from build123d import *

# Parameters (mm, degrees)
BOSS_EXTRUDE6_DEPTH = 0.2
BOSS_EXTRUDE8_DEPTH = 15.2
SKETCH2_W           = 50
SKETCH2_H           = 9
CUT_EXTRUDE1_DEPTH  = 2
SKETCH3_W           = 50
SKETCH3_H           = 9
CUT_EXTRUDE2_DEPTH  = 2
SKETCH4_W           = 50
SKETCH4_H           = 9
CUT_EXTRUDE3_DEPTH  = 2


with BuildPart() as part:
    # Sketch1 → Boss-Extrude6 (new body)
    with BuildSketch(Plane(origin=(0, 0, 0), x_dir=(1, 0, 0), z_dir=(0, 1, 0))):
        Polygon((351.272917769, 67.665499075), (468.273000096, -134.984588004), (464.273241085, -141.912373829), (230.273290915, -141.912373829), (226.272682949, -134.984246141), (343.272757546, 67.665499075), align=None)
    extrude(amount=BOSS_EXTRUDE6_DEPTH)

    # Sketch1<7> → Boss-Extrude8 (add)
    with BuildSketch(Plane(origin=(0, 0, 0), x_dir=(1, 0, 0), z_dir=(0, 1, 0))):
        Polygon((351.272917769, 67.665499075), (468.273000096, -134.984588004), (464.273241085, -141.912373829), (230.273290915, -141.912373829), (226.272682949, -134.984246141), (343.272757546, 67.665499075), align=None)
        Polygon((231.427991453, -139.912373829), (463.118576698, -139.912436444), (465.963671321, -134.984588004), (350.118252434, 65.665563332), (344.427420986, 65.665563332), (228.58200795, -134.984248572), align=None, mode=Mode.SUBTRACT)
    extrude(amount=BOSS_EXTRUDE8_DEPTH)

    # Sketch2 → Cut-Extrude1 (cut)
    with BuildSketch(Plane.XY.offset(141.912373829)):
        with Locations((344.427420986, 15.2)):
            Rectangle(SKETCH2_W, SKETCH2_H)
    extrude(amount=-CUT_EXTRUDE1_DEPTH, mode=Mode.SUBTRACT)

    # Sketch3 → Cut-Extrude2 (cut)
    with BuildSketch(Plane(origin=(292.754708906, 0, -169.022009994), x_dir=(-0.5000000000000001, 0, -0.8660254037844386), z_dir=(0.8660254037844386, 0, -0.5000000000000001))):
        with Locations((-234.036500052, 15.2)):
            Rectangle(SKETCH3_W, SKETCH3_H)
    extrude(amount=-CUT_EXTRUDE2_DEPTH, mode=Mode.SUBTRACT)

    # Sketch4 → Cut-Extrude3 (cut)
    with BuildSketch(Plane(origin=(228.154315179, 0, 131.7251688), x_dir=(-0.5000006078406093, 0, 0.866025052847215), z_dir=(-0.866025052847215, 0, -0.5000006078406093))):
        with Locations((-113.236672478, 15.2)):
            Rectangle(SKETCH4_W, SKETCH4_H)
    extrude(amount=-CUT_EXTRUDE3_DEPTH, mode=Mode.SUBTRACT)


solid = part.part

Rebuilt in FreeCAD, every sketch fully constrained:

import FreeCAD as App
import Part
import Sketcher

V = App.Vector
Q = App.Units.Quantity

doc = App.newDocument("Part")
params = doc.addObject("Spreadsheet::Sheet", "Params")
for row, (alias, value) in enumerate([
    ("pad1_length", "0.2 mm"),
    ("pad2_length", "15.2 mm"),
    ("sketch3_width", "50 mm"),
    ("sketch3_height", "9 mm"),
    ("pocket1_length", "2 mm"),
    ("sketch4_width", "50 mm"),
    ("sketch4_height", "9 mm"),
    ("pocket2_length", "2 mm"),
    ("sketch5_width", "50 mm"),
    ("sketch5_height", "9 mm"),
    ("pocket3_length", "2 mm"),
], start=1):
    params.set(f"A{row}", alias)
    params.set(f"B{row}", "=" + value)
    params.setAlias(f"B{row}", alias)

body = doc.addObject("PartDesign::Body", "Body")

sketch1 = body.newObject("Sketcher::SketchObject", "Sketch")
sketch1.AttachmentSupport = (doc.getObject("XZ_Plane"), [""])
sketch1.MapMode = "FlatFace"
sketch1.addGeometry([
    Part.LineSegment(V(468.273, 134.984588, 0), V(351.272918, -67.665499, 0)),
    Part.LineSegment(V(351.272918, -67.665499, 0), V(343.272758, -67.665499, 0)),
    Part.LineSegment(V(343.272758, -67.665499, 0), V(226.272683, 134.984246, 0)),
    Part.LineSegment(V(226.272683, 134.984246, 0), V(230.273291, 141.912374, 0)),
    Part.LineSegment(V(230.273291, 141.912374, 0), V(464.273241, 141.912374, 0)),
    Part.LineSegment(V(464.273241, 141.912374, 0), V(468.273, 134.984588, 0)),
], False)
sketch1.addConstraint([
    Sketcher.Constraint("Coincident", 0, 2, 1, 1),
    Sketcher.Constraint("Coincident", 1, 2, 2, 1),
    Sketcher.Constraint("Coincident", 2, 2, 3, 1),
    Sketcher.Constraint("Coincident", 3, 2, 4, 1),
    Sketcher.Constraint("Coincident", 4, 2, 5, 1),
    Sketcher.Constraint("Coincident", 5, 2, 0, 1),
    Sketcher.Constraint("Horizontal", 1),
    Sketcher.Constraint("Horizontal", 4),
    Sketcher.Constraint("Parallel", 2, 5),
    Sketcher.Constraint("Angle", 0, Q("-120 deg")),
    Sketcher.Constraint("Angle", 5, Q("-60 deg")),
    Sketcher.Constraint("DistanceX", -1, 1, 5, 2, Q("468.273 mm")),
    Sketcher.Constraint("DistanceX", 1, 2, 1, 1, Q("8.00016 mm")),
    Sketcher.Constraint("DistanceX", 4, 1, 4, 2, Q("233.99995 mm")),
    Sketcher.Constraint("DistanceY", 0, 2, -1, 1, Q("67.665499 mm")),
    Sketcher.Constraint("Distance", 3, Q("8.000239 mm")),
    Sketcher.Constraint("Distance", 5, Q("7.999518 mm")),
    Sketcher.Constraint("DistanceY", -1, 1, 5, 2, Q("134.984588 mm")),
])
pad1 = body.newObject("PartDesign::Pad", "Pad")
pad1.Profile = sketch1
pad1.setExpression("Length", "Params.pad1_length")
pad1.Reversed = True

sketch2 = body.newObject("Sketcher::SketchObject", "Sketch001")
sketch2.AttachmentSupport = (doc.getObject("XZ_Plane"), [""])
sketch2.MapMode = "FlatFace"
sketch2.addGeometry([
    Part.LineSegment(V(468.273, 134.984588, 0), V(351.272918, -67.665499, 0)),
    Part.LineSegment(V(351.272918, -67.665499, 0), V(343.272758, -67.665499, 0)),
    Part.LineSegment(V(343.272758, -67.665499, 0), V(226.272683, 134.984246, 0)),
    Part.LineSegment(V(226.272683, 134.984246, 0), V(230.273291, 141.912374, 0)),
    Part.LineSegment(V(230.273291, 141.912374, 0), V(464.273241, 141.912374, 0)),
    Part.LineSegment(V(464.273241, 141.912374, 0), V(468.273, 134.984588, 0)),
    Part.LineSegment(V(231.427991, 139.912374, 0), V(228.582008, 134.984249, 0)),
    Part.LineSegment(V(228.582008, 134.984249, 0), V(344.427421, -65.665563, 0)),
    Part.LineSegment(V(344.427421, -65.665563, 0), V(350.118252, -65.665563, 0)),
    Part.LineSegment(V(350.118252, -65.665563, 0), V(465.963671, 134.984588, 0)),
    Part.LineSegment(V(465.963671, 134.984588, 0), V(463.118577, 139.912436, 0)),
    Part.LineSegment(V(463.118577, 139.912436, 0), V(231.427991, 139.912374, 0)),
], False)
sketch2.addConstraint([
    Sketcher.Constraint("Coincident", 0, 2, 1, 1),
    Sketcher.Constraint("Coincident", 1, 2, 2, 1),
    Sketcher.Constraint("Coincident", 2, 2, 3, 1),
    Sketcher.Constraint("Coincident", 3, 2, 4, 1),
    Sketcher.Constraint("Coincident", 4, 2, 5, 1),
    Sketcher.Constraint("Coincident", 5, 2, 0, 1),
    Sketcher.Constraint("Coincident", 6, 2, 7, 1),
    Sketcher.Constraint("Coincident", 7, 2, 8, 1),
    Sketcher.Constraint("Coincident", 8, 2, 9, 1),
    Sketcher.Constraint("Coincident", 9, 2, 10, 1),
    Sketcher.Constraint("Coincident", 10, 2, 11, 1),
    Sketcher.Constraint("Coincident", 11, 2, 6, 1),
    Sketcher.Constraint("Horizontal", 1),
    Sketcher.Constraint("Horizontal", 4),
    Sketcher.Constraint("Horizontal", 8),
    Sketcher.Constraint("Parallel", 2, 5),
    Sketcher.Constraint("Parallel", 5, 7),
    Sketcher.Constraint("Parallel", 0, 9),
    Sketcher.Constraint("Parallel", 7, 10),
    Sketcher.Constraint("Horizontal", 5, 2, 9, 2),
    Sketcher.Constraint("Angle", 0, Q("-120 deg")),
    Sketcher.Constraint("Angle", 5, Q("-60 deg")),
    Sketcher.Constraint("Angle", 11, Q("-179.999985 deg")),
    Sketcher.Constraint("DistanceY", 11, 2, 3, 2, Q("2 mm")),
    Sketcher.Constraint("DistanceX", -1, 1, 5, 2, Q("468.273 mm")),
    Sketcher.Constraint("DistanceY", 8, 2, 10, 2, Q("205.578 mm")),
    Sketcher.Constraint("DistanceX", 1, 2, 1, 1, Q("8.00016 mm")),
    Sketcher.Constraint("DistanceX", 4, 1, 4, 2, Q("233.99995 mm")),
    Sketcher.Constraint("DistanceX", 8, 1, 8, 2, Q("5.690831 mm")),
    Sketcher.Constraint("DistanceY", 0, 2, -1, 1, Q("67.665499 mm")),
    Sketcher.Constraint("DistanceX", 3, 2, 11, 2, Q("1.154701 mm")),
    Sketcher.Constraint("Distance", 3, Q("8.000239 mm")),
    Sketcher.Constraint("Distance", 5, Q("7.999518 mm")),
    Sketcher.Constraint("Distance", 7, Q("231.690541 mm")),
    Sketcher.Constraint("DistanceY", -1, 1, 5, 2, Q("134.984588 mm")),
    Sketcher.Constraint("DistanceX", -1, 1, 7, 2, Q("344.427421 mm")),
])
pad2 = body.newObject("PartDesign::Pad", "Pad001")
pad2.Profile = sketch2
pad2.setExpression("Length", "Params.pad2_length")
pad2.Reversed = True

sketch3 = body.newObject("Sketcher::SketchObject", "Sketch002")
sketch3.AttachmentSupport = (doc.getObject("XY_Plane"), [""])
sketch3.MapMode = "FlatFace"
sketch3.AttachmentOffset = App.Placement(V(0, 0, 141.912374), App.Rotation())
sketch3.addGeometry([
    Part.LineSegment(V(319, 20, 0), V(319, 11, 0)),
    Part.LineSegment(V(319, 11, 0), V(369, 11, 0)),
    Part.LineSegment(V(369, 11, 0), V(369, 20, 0)),
    Part.LineSegment(V(369, 20, 0), V(319, 20, 0)),
], False)
sketch3.addConstraint([
    Sketcher.Constraint("Coincident", 0, 2, 1, 1),
    Sketcher.Constraint("Coincident", 1, 2, 2, 1),
    Sketcher.Constraint("Coincident", 2, 2, 3, 1),
    Sketcher.Constraint("Coincident", 3, 2, 0, 1),
    Sketcher.Constraint("Vertical", 0),
    Sketcher.Constraint("Horizontal", 1),
    Sketcher.Constraint("Vertical", 2),
    Sketcher.Constraint("Horizontal", 3),
    Sketcher.Constraint("DistanceX", 1, 1, 1, 2, Q("50 mm")),
    Sketcher.Constraint("DistanceY", 0, 2, 0, 1, Q("9 mm")),
    Sketcher.Constraint("DistanceY", -1, 1, 0, 2, Q("10.7 mm")),
    Sketcher.Constraint("DistanceX", -1, 1, 0, 2, Q("319.427421 mm")),
])
sketch3.setExpression("Constraints[8]", "Params.sketch3_width")
sketch3.setExpression("Constraints[9]", "Params.sketch3_height")
pocket1 = body.newObject("PartDesign::Pocket", "Pocket")
pocket1.Profile = sketch3
pocket1.setExpression("Length", "Params.pocket1_length")

sketch4 = body.newObject("Sketcher::SketchObject", "Sketch003")
sketch4.Placement = App.Placement(V(292.754709, 0, -169.02201), App.Rotation(V(-0.5, 0, -0.866025404), V(0, 1, 0), V(0.866025404, 0, -0.5), "ZXY"))
sketch4.addGeometry([
    Part.LineSegment(V(-259, 20, 0), V(-259, 11, 0)),
    Part.LineSegment(V(-259, 11, 0), V(-209, 11, 0)),
    Part.LineSegment(V(-209, 11, 0), V(-209, 20, 0)),
    Part.LineSegment(V(-209, 20, 0), V(-259, 20, 0)),
], False)
sketch4.addConstraint([
    Sketcher.Constraint("Coincident", 0, 2, 1, 1),
    Sketcher.Constraint("Coincident", 1, 2, 2, 1),
    Sketcher.Constraint("Coincident", 2, 2, 3, 1),
    Sketcher.Constraint("Coincident", 3, 2, 0, 1),
    Sketcher.Constraint("Vertical", 0),
    Sketcher.Constraint("Horizontal", 1),
    Sketcher.Constraint("Vertical", 2),
    Sketcher.Constraint("Horizontal", 3),
    Sketcher.Constraint("DistanceX", 1, 1, 1, 2, Q("50 mm")),
    Sketcher.Constraint("DistanceY", 0, 2, 0, 1, Q("9 mm")),
    Sketcher.Constraint("DistanceY", -1, 1, 0, 2, Q("10.7 mm")),
    Sketcher.Constraint("DistanceX", 0, 2, -1, 1, Q("259.0365 mm")),
])
sketch4.setExpression("Constraints[8]", "Params.sketch4_width")
sketch4.setExpression("Constraints[9]", "Params.sketch4_height")
pocket2 = body.newObject("PartDesign::Pocket", "Pocket001")
pocket2.Profile = sketch4
pocket2.setExpression("Length", "Params.pocket2_length")

sketch5 = body.newObject("Sketcher::SketchObject", "Sketch004")
sketch5.Placement = App.Placement(V(228.154315, 0, 131.725169), App.Rotation(V(-0.500000608, 0, 0.866025053), V(0, 1, 0), V(-0.866025053, 0, -0.500000608), "ZXY"))
sketch5.addGeometry([
    Part.LineSegment(V(-138, 20, 0), V(-138, 11, 0)),
    Part.LineSegment(V(-138, 11, 0), V(-88, 11, 0)),
    Part.LineSegment(V(-88, 11, 0), V(-88, 20, 0)),
    Part.LineSegment(V(-88, 20, 0), V(-138, 20, 0)),
], False)
sketch5.addConstraint([
    Sketcher.Constraint("Coincident", 0, 2, 1, 1),
    Sketcher.Constraint("Coincident", 1, 2, 2, 1),
    Sketcher.Constraint("Coincident", 2, 2, 3, 1),
    Sketcher.Constraint("Coincident", 3, 2, 0, 1),
    Sketcher.Constraint("Vertical", 0),
    Sketcher.Constraint("Horizontal", 1),
    Sketcher.Constraint("Vertical", 2),
    Sketcher.Constraint("Horizontal", 3),
    Sketcher.Constraint("DistanceX", 1, 1, 1, 2, Q("50 mm")),
    Sketcher.Constraint("DistanceY", 0, 2, 0, 1, Q("9 mm")),
    Sketcher.Constraint("DistanceY", -1, 1, 0, 2, Q("10.7 mm")),
    Sketcher.Constraint("DistanceX", 0, 2, -1, 1, Q("138.236673 mm")),
])
sketch5.setExpression("Constraints[8]", "Params.sketch5_width")
sketch5.setExpression("Constraints[9]", "Params.sketch5_height")
pocket3 = body.newObject("PartDesign::Pocket", "Pocket002")
pocket3.Profile = sketch5
pocket3.setExpression("Length", "Params.pocket3_length")

doc.recompute()
